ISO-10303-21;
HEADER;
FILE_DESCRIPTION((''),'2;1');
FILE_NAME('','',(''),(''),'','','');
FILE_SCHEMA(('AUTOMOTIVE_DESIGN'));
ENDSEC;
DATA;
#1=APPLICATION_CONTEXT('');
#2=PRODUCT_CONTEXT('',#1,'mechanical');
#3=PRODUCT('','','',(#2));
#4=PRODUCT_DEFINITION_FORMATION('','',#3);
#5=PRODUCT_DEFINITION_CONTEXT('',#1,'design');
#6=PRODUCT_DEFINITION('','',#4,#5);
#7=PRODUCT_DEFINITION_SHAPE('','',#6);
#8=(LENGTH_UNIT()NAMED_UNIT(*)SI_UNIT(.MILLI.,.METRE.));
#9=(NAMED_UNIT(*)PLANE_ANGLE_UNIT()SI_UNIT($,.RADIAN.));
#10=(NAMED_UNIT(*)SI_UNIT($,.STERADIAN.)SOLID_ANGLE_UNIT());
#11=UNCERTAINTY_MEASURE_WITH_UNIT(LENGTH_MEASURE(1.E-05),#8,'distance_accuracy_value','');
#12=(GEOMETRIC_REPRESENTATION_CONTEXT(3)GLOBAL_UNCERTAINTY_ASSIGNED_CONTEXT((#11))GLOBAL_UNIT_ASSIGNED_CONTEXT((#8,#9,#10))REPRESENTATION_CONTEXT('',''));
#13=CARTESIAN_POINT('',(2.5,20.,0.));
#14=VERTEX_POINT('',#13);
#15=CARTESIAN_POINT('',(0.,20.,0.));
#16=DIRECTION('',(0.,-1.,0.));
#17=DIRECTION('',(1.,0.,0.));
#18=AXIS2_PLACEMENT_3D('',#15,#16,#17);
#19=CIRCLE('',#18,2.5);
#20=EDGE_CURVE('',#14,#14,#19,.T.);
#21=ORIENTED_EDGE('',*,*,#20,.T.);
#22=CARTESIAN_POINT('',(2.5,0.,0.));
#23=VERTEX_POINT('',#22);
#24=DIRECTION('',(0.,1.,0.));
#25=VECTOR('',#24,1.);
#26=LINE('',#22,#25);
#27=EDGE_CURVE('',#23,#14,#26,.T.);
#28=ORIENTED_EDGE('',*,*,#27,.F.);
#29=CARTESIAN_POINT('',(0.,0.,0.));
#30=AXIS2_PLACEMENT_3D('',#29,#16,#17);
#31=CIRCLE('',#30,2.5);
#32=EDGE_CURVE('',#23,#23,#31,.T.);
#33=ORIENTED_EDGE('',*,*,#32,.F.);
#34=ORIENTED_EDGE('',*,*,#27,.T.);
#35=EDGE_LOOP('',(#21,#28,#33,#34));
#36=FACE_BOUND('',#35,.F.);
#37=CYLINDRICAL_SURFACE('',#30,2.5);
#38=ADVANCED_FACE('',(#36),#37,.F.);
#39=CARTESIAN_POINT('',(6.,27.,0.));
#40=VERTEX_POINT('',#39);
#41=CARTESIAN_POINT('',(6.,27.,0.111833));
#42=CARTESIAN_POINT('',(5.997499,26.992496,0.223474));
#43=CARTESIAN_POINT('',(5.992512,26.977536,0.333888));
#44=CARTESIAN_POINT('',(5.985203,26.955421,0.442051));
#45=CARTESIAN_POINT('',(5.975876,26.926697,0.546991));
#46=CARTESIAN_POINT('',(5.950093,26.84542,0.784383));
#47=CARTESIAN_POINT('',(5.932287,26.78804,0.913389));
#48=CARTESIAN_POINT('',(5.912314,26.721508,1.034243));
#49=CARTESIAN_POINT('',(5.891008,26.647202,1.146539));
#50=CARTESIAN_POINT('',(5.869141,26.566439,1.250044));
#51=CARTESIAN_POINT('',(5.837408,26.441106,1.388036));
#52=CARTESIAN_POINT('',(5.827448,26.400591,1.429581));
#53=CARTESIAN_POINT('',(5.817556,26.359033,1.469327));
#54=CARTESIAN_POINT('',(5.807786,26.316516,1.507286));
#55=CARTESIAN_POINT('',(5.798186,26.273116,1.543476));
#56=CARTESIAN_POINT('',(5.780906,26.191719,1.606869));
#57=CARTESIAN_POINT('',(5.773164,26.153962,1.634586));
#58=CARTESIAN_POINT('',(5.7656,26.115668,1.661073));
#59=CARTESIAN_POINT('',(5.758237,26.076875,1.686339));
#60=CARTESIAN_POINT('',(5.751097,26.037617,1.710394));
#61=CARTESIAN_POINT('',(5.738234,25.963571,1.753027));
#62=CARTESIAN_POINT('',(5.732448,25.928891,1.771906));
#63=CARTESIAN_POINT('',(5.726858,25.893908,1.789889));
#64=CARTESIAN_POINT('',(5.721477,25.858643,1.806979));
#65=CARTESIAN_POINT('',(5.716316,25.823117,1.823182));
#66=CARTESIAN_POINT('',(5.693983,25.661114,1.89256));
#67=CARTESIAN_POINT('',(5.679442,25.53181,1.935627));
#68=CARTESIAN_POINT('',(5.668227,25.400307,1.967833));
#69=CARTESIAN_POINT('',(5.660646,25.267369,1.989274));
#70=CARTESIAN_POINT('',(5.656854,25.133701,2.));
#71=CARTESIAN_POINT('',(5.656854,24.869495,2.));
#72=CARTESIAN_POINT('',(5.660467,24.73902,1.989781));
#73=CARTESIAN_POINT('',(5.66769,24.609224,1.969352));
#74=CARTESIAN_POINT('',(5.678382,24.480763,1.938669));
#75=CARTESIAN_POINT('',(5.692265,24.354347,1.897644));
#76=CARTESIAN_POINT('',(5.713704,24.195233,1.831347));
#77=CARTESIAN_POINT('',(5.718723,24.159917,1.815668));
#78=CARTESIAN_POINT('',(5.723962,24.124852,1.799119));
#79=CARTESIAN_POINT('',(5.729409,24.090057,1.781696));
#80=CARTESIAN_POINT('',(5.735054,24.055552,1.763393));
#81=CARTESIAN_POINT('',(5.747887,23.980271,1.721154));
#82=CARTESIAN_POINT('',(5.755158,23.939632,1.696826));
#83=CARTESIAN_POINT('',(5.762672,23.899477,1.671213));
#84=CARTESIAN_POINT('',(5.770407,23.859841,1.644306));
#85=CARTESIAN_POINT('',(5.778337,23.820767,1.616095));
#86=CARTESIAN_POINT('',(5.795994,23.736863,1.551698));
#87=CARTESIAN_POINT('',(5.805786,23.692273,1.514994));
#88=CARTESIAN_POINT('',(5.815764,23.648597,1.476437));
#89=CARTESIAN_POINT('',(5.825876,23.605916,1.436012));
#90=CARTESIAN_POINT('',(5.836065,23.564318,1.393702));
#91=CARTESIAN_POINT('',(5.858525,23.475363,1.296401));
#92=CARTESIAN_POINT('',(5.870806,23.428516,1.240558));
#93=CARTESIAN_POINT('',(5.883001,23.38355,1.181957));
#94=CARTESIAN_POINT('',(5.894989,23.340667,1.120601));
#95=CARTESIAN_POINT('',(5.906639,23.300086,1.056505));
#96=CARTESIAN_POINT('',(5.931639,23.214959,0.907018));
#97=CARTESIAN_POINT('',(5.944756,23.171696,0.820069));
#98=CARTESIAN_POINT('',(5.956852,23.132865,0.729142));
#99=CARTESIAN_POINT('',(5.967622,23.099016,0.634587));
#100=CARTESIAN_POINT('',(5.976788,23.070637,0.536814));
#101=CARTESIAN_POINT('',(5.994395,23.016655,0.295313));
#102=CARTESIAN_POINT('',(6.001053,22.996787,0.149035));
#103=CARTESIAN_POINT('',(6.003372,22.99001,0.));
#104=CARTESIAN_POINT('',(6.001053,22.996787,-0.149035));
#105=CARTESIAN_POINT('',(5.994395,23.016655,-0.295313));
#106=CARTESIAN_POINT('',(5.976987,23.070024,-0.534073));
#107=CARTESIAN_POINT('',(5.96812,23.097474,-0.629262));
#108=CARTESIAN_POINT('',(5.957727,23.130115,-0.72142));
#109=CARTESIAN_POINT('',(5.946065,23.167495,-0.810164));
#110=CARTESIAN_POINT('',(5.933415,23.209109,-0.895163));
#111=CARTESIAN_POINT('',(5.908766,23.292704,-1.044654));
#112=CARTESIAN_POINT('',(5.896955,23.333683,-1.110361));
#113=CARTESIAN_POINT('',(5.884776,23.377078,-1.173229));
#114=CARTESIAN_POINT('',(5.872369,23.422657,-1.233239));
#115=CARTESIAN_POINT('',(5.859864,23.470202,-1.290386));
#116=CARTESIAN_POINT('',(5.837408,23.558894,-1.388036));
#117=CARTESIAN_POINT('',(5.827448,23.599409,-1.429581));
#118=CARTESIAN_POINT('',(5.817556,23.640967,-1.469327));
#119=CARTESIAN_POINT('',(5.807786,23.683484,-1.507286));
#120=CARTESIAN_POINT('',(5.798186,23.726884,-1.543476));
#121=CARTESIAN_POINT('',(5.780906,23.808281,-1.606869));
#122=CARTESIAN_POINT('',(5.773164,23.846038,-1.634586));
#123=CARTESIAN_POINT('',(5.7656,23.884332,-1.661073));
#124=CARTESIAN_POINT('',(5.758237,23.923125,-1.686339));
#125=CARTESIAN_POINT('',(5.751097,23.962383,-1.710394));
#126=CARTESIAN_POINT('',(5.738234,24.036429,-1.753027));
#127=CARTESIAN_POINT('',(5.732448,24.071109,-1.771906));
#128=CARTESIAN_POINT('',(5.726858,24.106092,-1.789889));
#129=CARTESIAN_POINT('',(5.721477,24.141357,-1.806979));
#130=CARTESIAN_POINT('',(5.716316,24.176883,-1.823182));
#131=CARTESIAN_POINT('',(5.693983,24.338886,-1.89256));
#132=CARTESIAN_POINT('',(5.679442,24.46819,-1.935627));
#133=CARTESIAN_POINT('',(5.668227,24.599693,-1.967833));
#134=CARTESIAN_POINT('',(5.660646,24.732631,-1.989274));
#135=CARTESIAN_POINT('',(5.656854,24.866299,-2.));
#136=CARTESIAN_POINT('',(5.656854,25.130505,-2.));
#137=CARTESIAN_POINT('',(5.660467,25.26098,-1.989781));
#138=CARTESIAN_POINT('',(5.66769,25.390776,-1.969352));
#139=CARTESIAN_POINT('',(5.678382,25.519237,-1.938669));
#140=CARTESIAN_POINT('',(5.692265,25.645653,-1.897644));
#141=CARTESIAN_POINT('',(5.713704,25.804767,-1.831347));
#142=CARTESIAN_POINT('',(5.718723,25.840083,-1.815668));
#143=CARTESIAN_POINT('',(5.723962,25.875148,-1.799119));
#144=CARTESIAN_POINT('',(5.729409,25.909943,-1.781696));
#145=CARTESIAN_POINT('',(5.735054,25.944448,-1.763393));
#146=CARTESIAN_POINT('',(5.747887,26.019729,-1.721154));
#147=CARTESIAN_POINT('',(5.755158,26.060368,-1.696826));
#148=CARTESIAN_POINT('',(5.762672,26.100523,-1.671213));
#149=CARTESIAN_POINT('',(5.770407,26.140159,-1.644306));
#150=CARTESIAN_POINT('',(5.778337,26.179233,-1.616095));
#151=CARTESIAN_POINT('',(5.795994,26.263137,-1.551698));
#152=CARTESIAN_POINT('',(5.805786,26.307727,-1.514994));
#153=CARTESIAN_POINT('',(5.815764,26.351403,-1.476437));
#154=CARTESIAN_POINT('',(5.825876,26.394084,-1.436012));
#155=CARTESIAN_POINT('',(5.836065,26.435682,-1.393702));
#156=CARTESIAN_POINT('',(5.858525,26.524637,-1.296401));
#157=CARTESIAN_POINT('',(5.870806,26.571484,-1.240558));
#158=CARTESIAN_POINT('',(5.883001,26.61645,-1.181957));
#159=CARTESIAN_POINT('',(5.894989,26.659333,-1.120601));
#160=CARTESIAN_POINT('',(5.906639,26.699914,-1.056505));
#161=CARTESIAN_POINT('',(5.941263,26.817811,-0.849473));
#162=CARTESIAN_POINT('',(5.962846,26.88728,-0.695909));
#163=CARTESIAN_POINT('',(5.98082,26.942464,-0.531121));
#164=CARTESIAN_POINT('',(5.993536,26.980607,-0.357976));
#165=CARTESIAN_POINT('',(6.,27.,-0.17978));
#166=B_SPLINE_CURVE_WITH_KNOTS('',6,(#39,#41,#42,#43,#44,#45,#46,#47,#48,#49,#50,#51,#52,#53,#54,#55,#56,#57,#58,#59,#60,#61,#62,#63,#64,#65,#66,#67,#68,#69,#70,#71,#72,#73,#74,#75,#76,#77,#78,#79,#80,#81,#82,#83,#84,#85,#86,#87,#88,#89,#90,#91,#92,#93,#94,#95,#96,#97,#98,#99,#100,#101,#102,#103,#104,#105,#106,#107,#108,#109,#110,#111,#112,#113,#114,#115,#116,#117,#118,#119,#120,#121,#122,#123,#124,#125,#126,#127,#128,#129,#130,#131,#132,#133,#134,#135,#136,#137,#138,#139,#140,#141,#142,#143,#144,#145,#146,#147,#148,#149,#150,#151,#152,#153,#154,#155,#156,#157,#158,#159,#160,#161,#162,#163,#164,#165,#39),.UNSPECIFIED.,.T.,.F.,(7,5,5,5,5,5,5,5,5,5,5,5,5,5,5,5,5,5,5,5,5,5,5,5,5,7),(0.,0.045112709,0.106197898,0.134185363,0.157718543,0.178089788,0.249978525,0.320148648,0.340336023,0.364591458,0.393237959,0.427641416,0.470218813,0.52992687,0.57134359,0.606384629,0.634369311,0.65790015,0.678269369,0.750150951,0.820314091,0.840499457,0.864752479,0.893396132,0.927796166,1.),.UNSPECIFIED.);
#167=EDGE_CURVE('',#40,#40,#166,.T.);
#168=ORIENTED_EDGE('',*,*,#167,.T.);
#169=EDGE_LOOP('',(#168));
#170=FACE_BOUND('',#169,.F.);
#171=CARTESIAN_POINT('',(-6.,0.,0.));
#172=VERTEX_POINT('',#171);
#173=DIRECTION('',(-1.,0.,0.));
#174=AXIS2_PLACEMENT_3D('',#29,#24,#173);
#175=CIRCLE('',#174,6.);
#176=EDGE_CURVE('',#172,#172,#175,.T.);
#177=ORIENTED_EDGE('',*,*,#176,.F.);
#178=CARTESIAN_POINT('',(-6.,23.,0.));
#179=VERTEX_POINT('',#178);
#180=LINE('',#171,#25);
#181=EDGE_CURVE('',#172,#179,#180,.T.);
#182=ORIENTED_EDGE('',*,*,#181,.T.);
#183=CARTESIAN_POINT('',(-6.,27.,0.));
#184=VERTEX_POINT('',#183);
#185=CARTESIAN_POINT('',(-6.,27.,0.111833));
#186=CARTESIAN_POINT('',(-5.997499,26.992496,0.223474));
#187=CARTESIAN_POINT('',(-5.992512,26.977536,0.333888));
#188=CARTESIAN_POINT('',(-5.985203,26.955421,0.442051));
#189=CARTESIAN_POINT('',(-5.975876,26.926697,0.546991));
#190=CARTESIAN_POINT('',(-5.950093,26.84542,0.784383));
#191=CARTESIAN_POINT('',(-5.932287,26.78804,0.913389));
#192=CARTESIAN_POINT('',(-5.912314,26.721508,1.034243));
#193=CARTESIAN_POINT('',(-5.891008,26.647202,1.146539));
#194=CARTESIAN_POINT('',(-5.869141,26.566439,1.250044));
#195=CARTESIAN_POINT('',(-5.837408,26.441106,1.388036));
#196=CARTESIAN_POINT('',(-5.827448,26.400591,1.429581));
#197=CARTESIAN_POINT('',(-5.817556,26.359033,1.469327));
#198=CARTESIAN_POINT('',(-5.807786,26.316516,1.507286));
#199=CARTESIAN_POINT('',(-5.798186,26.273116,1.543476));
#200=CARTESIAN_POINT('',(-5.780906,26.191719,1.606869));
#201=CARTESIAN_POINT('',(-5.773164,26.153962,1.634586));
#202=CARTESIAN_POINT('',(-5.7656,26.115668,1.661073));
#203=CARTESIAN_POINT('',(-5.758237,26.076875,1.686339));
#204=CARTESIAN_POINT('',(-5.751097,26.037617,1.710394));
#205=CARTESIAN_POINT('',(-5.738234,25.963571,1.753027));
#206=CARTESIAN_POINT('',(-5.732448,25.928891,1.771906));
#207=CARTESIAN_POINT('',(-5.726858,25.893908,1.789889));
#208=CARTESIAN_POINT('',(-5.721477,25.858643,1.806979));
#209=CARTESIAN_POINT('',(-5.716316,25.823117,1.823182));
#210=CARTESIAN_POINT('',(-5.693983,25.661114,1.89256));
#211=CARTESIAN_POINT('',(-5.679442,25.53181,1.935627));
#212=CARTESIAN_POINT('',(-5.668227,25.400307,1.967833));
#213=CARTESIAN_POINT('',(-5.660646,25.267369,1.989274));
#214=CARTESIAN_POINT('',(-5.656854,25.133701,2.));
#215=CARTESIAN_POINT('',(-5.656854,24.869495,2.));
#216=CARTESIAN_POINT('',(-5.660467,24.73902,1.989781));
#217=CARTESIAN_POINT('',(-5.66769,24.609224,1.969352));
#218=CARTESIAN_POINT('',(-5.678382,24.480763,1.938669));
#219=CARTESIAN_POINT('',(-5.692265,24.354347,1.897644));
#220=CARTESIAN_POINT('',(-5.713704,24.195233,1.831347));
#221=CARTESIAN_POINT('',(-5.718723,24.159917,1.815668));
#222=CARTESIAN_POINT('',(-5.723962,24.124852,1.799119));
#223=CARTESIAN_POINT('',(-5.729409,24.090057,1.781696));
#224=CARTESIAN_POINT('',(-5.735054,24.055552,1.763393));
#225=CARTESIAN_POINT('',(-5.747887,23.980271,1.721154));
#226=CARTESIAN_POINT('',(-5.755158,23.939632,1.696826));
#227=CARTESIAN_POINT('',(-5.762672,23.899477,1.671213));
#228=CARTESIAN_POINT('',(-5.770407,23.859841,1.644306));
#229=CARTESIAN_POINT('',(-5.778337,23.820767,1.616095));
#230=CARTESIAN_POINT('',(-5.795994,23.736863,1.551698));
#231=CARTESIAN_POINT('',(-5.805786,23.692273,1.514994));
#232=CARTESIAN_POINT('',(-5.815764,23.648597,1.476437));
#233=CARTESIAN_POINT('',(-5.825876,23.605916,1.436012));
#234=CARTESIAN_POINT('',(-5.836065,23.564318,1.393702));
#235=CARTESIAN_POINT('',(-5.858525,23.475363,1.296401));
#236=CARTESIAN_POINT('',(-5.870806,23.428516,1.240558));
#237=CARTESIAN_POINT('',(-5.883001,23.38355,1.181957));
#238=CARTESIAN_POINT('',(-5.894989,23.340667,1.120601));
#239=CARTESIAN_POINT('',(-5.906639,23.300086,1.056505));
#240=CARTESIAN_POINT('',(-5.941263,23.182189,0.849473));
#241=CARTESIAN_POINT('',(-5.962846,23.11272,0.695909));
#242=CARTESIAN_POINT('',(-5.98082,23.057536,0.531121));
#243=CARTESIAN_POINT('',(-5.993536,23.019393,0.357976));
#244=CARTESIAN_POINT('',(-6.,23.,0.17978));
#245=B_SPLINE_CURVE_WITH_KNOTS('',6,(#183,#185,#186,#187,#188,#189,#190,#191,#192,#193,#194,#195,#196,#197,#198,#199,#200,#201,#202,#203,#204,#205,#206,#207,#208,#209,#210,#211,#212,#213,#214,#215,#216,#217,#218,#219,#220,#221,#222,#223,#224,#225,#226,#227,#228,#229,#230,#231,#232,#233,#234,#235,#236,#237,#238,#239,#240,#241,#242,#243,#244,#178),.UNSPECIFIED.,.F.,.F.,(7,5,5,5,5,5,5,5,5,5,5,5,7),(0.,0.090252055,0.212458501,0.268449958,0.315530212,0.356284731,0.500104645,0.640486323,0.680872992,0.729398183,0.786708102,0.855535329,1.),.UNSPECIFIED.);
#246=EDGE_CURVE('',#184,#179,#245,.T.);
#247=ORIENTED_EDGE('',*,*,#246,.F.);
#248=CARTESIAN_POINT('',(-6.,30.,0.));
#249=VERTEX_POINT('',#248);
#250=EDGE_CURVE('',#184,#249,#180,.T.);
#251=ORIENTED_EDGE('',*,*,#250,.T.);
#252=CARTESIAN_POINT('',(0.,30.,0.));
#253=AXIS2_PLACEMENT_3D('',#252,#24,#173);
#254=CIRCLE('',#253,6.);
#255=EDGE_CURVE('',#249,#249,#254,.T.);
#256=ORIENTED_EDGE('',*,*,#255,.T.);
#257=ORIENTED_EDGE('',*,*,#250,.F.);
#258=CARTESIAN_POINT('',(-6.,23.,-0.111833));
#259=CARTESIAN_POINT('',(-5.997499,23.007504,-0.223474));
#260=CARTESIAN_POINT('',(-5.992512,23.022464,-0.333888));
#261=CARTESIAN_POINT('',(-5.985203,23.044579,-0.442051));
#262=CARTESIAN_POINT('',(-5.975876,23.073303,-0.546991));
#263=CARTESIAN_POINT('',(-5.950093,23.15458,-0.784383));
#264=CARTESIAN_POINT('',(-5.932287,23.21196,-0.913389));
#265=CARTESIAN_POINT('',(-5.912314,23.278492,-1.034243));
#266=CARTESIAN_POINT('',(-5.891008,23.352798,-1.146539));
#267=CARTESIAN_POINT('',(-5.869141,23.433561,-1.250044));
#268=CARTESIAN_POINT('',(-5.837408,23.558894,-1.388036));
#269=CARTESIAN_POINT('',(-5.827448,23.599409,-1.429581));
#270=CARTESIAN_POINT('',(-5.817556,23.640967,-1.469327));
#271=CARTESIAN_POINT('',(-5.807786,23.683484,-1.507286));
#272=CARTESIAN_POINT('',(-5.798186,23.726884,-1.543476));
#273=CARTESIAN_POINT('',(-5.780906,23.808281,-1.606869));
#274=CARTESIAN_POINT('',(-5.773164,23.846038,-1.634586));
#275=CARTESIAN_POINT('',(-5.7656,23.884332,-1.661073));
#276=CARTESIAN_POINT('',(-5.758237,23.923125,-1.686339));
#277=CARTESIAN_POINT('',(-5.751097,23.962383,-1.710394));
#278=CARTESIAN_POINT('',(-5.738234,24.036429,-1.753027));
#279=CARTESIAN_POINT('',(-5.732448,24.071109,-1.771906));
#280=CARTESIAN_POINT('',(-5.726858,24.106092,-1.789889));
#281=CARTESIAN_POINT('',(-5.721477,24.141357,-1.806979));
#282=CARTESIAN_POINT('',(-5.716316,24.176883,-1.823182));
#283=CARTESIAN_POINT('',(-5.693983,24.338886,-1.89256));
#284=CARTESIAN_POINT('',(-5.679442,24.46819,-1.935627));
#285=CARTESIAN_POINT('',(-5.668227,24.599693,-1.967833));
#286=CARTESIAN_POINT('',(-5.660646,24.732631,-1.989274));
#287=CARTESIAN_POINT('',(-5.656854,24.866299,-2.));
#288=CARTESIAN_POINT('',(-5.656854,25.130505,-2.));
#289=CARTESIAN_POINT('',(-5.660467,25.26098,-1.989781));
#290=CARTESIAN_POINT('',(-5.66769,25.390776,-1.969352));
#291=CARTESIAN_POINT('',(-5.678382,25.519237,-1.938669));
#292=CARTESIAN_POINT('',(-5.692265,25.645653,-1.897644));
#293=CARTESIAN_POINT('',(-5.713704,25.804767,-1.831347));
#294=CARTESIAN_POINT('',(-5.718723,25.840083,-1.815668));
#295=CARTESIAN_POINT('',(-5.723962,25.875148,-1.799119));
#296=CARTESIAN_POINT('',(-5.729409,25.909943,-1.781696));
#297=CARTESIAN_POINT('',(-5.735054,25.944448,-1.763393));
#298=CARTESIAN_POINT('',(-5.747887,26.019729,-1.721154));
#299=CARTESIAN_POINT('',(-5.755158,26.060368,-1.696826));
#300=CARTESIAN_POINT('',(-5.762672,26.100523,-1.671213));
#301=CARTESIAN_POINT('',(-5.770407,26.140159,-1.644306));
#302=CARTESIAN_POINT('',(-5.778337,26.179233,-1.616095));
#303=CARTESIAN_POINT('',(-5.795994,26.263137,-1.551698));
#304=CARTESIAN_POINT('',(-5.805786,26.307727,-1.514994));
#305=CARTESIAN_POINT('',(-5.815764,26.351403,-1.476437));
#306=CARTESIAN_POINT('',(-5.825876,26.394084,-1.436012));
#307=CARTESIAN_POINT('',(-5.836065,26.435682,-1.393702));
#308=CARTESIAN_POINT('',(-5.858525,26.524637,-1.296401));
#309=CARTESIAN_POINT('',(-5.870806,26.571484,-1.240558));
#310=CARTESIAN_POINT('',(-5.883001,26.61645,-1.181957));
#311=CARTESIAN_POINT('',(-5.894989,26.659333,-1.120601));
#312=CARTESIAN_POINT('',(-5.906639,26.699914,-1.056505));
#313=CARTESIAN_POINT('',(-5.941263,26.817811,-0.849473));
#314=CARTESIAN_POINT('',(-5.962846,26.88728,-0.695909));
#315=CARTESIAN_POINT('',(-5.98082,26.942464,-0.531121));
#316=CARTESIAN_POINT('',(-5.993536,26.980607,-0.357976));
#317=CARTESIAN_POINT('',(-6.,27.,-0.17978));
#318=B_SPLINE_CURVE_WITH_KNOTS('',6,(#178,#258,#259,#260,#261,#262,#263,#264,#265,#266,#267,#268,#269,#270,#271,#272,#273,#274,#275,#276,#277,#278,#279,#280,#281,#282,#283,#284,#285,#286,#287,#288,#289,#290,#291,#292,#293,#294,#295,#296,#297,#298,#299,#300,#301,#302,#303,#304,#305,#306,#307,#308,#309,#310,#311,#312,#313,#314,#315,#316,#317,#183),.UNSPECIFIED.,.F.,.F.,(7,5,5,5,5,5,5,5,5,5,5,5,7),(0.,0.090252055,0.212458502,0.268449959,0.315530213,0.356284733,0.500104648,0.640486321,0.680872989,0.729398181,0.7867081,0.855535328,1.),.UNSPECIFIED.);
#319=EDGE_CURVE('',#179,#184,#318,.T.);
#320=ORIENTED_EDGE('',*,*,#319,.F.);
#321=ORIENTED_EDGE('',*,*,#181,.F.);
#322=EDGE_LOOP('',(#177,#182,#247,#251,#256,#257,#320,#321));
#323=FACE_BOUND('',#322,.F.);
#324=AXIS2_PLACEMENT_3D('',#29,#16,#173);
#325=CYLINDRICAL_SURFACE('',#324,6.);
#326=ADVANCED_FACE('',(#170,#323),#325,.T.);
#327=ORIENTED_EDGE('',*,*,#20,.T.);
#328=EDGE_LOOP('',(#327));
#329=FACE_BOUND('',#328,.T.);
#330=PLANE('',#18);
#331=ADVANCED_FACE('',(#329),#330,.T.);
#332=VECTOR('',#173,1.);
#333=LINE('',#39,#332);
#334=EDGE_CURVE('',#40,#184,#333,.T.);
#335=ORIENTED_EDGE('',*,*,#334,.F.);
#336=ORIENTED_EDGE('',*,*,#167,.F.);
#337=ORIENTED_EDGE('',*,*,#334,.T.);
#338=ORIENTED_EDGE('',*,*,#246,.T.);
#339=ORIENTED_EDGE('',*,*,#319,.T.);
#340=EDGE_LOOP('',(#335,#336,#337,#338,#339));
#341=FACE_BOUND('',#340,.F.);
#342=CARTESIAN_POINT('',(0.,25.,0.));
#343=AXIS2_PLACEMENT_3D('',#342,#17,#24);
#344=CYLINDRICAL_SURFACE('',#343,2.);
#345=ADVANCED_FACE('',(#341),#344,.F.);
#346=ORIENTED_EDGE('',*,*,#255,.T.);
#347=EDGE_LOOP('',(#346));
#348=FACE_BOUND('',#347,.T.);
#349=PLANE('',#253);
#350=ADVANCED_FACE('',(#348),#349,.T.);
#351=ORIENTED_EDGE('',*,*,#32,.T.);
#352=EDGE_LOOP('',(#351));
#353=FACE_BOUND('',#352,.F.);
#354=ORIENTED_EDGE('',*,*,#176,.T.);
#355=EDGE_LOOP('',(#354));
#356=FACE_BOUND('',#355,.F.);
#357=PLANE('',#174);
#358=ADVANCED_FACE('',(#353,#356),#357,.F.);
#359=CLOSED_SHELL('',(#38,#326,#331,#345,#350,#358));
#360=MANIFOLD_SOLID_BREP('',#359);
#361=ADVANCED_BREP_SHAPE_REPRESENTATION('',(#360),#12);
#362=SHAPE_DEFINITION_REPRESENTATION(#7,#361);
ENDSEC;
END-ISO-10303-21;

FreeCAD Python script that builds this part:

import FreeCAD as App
import Part
import Sketcher

doc = App.newDocument("Part")
params = doc.addObject("Spreadsheet::Sheet", "Params")
for row, (alias, value) in enumerate([
    ("sketch1_diameter", "12 mm"),
    ("pad1_length", "30 mm"),
    ("sketch2_diameter", "5 mm"),
    ("pocket1_length", "20 mm"),
    ("sketch3_diameter", "4 mm"),
    ("pocket2_length", "20 mm"),
], start=1):
    params.set(f"A{row}", alias)
    params.set(f"B{row}", "=" + value)
    params.setAlias(f"B{row}", alias)

body = doc.addObject("PartDesign::Body", "Body")

# Sketch on XZ plane
sketch1 = body.newObject("Sketcher::SketchObject", "Sketch")
sketch1.AttachmentSupport = (doc.getObject("XZ_Plane"), [""])
sketch1.MapMode = "FlatFace"
sketch1.addGeometry(Part.Circle(App.Vector(0, 0, 0), App.Vector(0, 0, 1), 6), False)
sketch1.addConstraint(Sketcher.Constraint("Coincident", 0, 3, -1, 1))
sketch1.addConstraint(Sketcher.Constraint("Diameter", 0, 12.0))
sketch1.setExpression("Constraints[1]", "Params.sketch1_diameter")
pad1 = body.newObject("PartDesign::Pad", "Pad")
pad1.Profile = sketch1
pad1.setExpression("Length", "Params.pad1_length")
pad1.Reversed = True

# Sketch on XZ plane
sketch2 = body.newObject("Sketcher::SketchObject", "Sketch001")
sketch2.AttachmentSupport = (doc.getObject("XZ_Plane"), [""])
sketch2.MapMode = "FlatFace"
sketch2.addGeometry(Part.Circle(App.Vector(0, 0, 0), App.Vector(0, 0, 1), 2.5), False)
sketch2.addConstraint(Sketcher.Constraint("Coincident", 0, 3, -1, 1))
sketch2.addConstraint(Sketcher.Constraint("Diameter", 0, 5.0))
sketch2.setExpression("Constraints[1]", "Params.sketch2_diameter")
pocket1 = body.newObject("PartDesign::Pocket", "Pocket")
pocket1.Profile = sketch2
pocket1.setExpression("Length", "Params.pocket1_length")

# Sketch on YZ plane
sketch3 = body.newObject("Sketcher::SketchObject", "Sketch002")
sketch3.AttachmentSupport = (doc.getObject("YZ_Plane"), [""])
sketch3.MapMode = "FlatFace"
sketch3.addGeometry(Part.Circle(App.Vector(25, 0, 0), App.Vector(0, 0, 1), 2), False)
sketch3.addConstraint(Sketcher.Constraint("PointOnObject", 0, 3, -1))
sketch3.addConstraint(Sketcher.Constraint("Diameter", 0, 4.0))
sketch3.addConstraint(Sketcher.Constraint("DistanceX", -1, 1, 0, 3, 25.0))
sketch3.setExpression("Constraints[1]", "Params.sketch3_diameter")
pocket2 = body.newObject("PartDesign::Pocket", "Pocket001")
pocket2.Profile = sketch3
pocket2.setExpression("Length", "Params.pocket2_length")
pocket2.Midplane = True

doc.recompute()
